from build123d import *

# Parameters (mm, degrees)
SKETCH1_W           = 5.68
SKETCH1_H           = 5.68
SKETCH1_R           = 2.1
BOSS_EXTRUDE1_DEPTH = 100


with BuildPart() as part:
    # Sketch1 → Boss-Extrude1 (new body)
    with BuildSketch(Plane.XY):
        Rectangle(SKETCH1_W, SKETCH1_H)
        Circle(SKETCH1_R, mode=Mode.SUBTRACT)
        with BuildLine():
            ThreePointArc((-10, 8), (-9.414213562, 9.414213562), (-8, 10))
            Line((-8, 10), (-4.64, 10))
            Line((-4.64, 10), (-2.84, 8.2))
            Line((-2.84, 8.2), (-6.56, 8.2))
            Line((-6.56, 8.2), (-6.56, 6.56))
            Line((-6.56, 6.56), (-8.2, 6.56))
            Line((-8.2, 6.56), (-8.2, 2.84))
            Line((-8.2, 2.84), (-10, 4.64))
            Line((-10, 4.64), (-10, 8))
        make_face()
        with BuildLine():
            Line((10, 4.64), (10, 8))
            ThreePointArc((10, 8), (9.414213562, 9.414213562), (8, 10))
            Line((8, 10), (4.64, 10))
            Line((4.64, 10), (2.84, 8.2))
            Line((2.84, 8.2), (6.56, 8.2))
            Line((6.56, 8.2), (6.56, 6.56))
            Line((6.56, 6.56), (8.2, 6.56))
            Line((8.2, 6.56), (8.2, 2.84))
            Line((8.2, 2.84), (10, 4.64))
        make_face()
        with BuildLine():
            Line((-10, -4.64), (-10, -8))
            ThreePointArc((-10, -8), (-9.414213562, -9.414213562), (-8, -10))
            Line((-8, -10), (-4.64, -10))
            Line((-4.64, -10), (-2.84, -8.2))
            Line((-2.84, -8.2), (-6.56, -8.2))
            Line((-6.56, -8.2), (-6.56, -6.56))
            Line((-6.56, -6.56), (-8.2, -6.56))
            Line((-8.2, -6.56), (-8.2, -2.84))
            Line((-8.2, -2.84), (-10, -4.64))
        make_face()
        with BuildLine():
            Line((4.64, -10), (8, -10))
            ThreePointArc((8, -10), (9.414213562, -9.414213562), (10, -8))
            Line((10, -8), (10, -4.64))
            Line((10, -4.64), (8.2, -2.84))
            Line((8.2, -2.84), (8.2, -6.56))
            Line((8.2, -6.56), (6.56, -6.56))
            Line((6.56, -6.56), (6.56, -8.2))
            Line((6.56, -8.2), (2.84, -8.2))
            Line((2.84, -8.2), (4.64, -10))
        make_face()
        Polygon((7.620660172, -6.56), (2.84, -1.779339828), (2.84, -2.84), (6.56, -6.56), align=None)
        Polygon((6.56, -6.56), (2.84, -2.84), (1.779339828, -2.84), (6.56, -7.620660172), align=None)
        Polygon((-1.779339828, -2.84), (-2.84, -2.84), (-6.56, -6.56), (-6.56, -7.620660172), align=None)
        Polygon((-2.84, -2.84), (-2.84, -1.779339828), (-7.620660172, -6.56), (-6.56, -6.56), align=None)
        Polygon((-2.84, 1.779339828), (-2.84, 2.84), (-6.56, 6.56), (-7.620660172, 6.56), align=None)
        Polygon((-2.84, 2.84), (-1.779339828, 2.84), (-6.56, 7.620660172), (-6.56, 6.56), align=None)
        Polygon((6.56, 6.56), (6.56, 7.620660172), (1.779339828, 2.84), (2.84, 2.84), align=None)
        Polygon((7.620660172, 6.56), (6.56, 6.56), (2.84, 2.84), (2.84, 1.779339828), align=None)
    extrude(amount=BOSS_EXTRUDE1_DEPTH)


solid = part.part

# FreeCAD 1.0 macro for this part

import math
import FreeCAD as App
import Part
import Sketcher
from FreeCAD import Vector
Q = App.Units.Quantity

doc = App.newDocument("Part")
params = doc.addObject("Spreadsheet::Sheet", "Params")
for row, (alias, value) in enumerate([
    ("sketch1_radius", "2 mm"),
    ("sketch1_diameter", "4.2 mm"),
    ("sketch1_width", "3.36 mm"),
    ("sketch1_width2", "3.72 mm"),
    ("pad1_length", "100 mm"),
], start=1):
    params.set(f"A{row}", alias)
    params.set(f"B{row}", "=" + value)
    params.setAlias(f"B{row}", alias)

body = doc.addObject("PartDesign::Body", "Body")

# Sketch on XY plane
sketch1 = body.newObject("Sketcher::SketchObject", "Sketch")
sketch1.AttachmentSupport = (doc.getObject("XY_Plane"), [""])
sketch1.MapMode = "FlatFace"
sketch1.addGeometry(Part.LineSegment(Vector(-2.8, 1.8, 0), Vector(-2.8, -1.8, 0)), False)
sketch1.addGeometry(Part.LineSegment(Vector(-2.8, -1.8, 0), Vector(-7.6, -6.6, 0)), False)
sketch1.addGeometry(Part.LineSegment(Vector(-7.6, -6.6, 0), Vector(-8.2, -6.6, 0)), False)
sketch1.addGeometry(Part.LineSegment(Vector(-8.2, -6.6, 0), Vector(-8.2, -2.8, 0)), False)
sketch1.addGeometry(Part.LineSegment(Vector(-8.2, -2.8, 0), Vector(-10, -4.6, 0)), False)
sketch1.addGeometry(Part.LineSegment(Vector(-10, -4.6, 0), Vector(-10, -8, 0)), False)
sketch1.addGeometry(Part.ArcOfCircle(Part.Circle(Vector(-8, -8, 0), Vector(0, 0, 1), 2), math.radians(-180), math.radians(-90)), False)
sketch1.addGeometry(Part.LineSegment(Vector(-8, -10, 0), Vector(-4.6, -10, 0)), False)
sketch1.addGeometry(Part.LineSegment(Vector(-4.6, -10, 0), Vector(-2.8, -8.2, 0)), False)
sketch1.addGeometry(Part.LineSegment(Vector(-2.8, -8.2, 0), Vector(-6.6, -8.2, 0)), False)
sketch1.addGeometry(Part.LineSegment(Vector(-6.6, -8.2, 0), Vector(-6.6, -7.6, 0)), False)
sketch1.addGeometry(Part.LineSegment(Vector(-6.6, -7.6, 0), Vector(-1.8, -2.8, 0)), False)
sketch1.addGeometry(Part.LineSegment(Vector(-1.8, -2.8, 0), Vector(1.8, -2.8, 0)), False)
sketch1.addGeometry(Part.LineSegment(Vector(1.8, -2.8, 0), Vector(6.6, -7.6, 0)), False)
sketch1.addGeometry(Part.LineSegment(Vector(6.6, -7.6, 0), Vector(6.6, -8.2, 0)), False)
sketch1.addGeometry(Part.LineSegment(Vector(6.6, -8.2, 0), Vector(2.8, -8.2, 0)), False)
sketch1.addGeometry(Part.LineSegment(Vector(2.8, -8.2, 0), Vector(4.6, -10, 0)), False)
sketch1.addGeometry(Part.LineSegment(Vector(4.6, -10, 0), Vector(8, -10, 0)), False)
sketch1.addGeometry(Part.ArcOfCircle(Part.Circle(Vector(8, -8, 0), Vector(0, 0, 1), 2), math.radians(-90), math.radians(0)), False)
sketch1.addGeometry(Part.LineSegment(Vector(10, -8, 0), Vector(10, -4.6, 0)), False)
sketch1.addGeometry(Part.LineSegment(Vector(10, -4.6, 0), Vector(8.2, -2.8, 0)), False)
sketch1.addGeometry(Part.LineSegment(Vector(8.2, -2.8, 0), Vector(8.2, -6.6, 0)), False)
sketch1.addGeometry(Part.LineSegment(Vector(8.2, -6.6, 0), Vector(7.6, -6.6, 0)), False)
sketch1.addGeometry(Part.LineSegment(Vector(7.6, -6.6, 0), Vector(2.8, -1.8, 0)), False)
sketch1.addGeometry(Part.LineSegment(Vector(2.8, -1.8, 0), Vector(2.8, 1.8, 0)), False)
sketch1.addGeometry(Part.LineSegment(Vector(2.8, 1.8, 0), Vector(7.6, 6.6, 0)), False)
sketch1.addGeometry(Part.LineSegment(Vector(7.6, 6.6, 0), Vector(8.2, 6.6, 0)), False)
sketch1.addGeometry(Part.LineSegment(Vector(8.2, 6.6, 0), Vector(8.2, 2.8, 0)), False)
sketch1.addGeometry(Part.LineSegment(Vector(8.2, 2.8, 0), Vector(10, 4.6, 0)), False)
sketch1.addGeometry(Part.LineSegment(Vector(10, 4.6, 0), Vector(10, 8, 0)), False)
sketch1.addGeometry(Part.ArcOfCircle(Part.Circle(Vector(8, 8, 0), Vector(0, 0, 1), 2), math.radians(0), math.radians(90)), False)
sketch1.addGeometry(Part.LineSegment(Vector(8, 10, 0), Vector(4.6, 10, 0)), False)
sketch1.addGeometry(Part.LineSegment(Vector(4.6, 10, 0), Vector(2.8, 8.2, 0)), False)
sketch1.addGeometry(Part.LineSegment(Vector(2.8, 8.2, 0), Vector(6.6, 8.2, 0)), False)
sketch1.addGeometry(Part.LineSegment(Vector(6.6, 8.2, 0), Vector(6.6, 7.6, 0)), False)
sketch1.addGeometry(Part.LineSegment(Vector(6.6, 7.6, 0), Vector(1.8, 2.8, 0)), False)
sketch1.addGeometry(Part.LineSegment(Vector(1.8, 2.8, 0), Vector(-1.8, 2.8, 0)), False)
sketch1.addGeometry(Part.LineSegment(Vector(-1.8, 2.8, 0), Vector(-6.6, 7.6, 0)), False)
sketch1.addGeometry(Part.LineSegment(Vector(-6.6, 7.6, 0), Vector(-6.6, 8.2, 0)), False)
sketch1.addGeometry(Part.LineSegment(Vector(-6.6, 8.2, 0), Vector(-2.8, 8.2, 0)), False)
sketch1.addGeometry(Part.LineSegment(Vector(-2.8, 8.2, 0), Vector(-4.6, 10, 0)), False)
sketch1.addGeometry(Part.LineSegment(Vector(-4.6, 10, 0), Vector(-8, 10, 0)), False)
sketch1.addGeometry(Part.ArcOfCircle(Part.Circle(Vector(-8, 8, 0), Vector(0, 0, 1), 2), math.radians(90), math.radians(180)), False)
sketch1.addGeometry(Part.LineSegment(Vector(-10, 8, 0), Vector(-10, 4.6, 0)), False)
sketch1.addGeometry(Part.LineSegment(Vector(-10, 4.6, 0), Vector(-8.2, 2.8, 0)), False)
sketch1.addGeometry(Part.LineSegment(Vector(-8.2, 2.8, 0), Vector(-8.2, 6.6, 0)), False)
sketch1.addGeometry(Part.LineSegment(Vector(-8.2, 6.6, 0), Vector(-7.6, 6.6, 0)), False)
sketch1.addGeometry(Part.LineSegment(Vector(-7.6, 6.6, 0), Vector(-2.8, 1.8, 0)), False)
sketch1.addGeometry(Part.Circle(Vector(0, 0, 0), Vector(0, 0, 1), 2.1), False)
sketch1.addConstraint(Sketcher.Constraint("Coincident", 0, 2, 1, 1))
sketch1.addConstraint(Sketcher.Constraint("Coincident", 1, 2, 2, 1))
sketch1.addConstraint(Sketcher.Constraint("Coincident", 2, 2, 3, 1))
sketch1.addConstraint(Sketcher.Constraint("Coincident", 3, 2, 4, 1))
sketch1.addConstraint(Sketcher.Constraint("Coincident", 4, 2, 5, 1))
sketch1.addConstraint(Sketcher.Constraint("Tangent", 5, 2, 6, 1))
sketch1.addConstraint(Sketcher.Constraint("Tangent", 6, 2, 7, 1))
sketch1.addConstraint(Sketcher.Constraint("Coincident", 7, 2, 8, 1))
sketch1.addConstraint(Sketcher.Constraint("Coincident", 8, 2, 9, 1))
sketch1.addConstraint(Sketcher.Constraint("Coincident", 9, 2, 10, 1))
sketch1.addConstraint(Sketcher.Constraint("Coincident", 10, 2, 11, 1))
sketch1.addConstraint(Sketcher.Constraint("Coincident", 11, 2, 12, 1))
sketch1.addConstraint(Sketcher.Constraint("Coincident", 12, 2, 13, 1))
sketch1.addConstraint(Sketcher.Constraint("Coincident", 13, 2, 14, 1))
sketch1.addConstraint(Sketcher.Constraint("Coincident", 14, 2, 15, 1))
sketch1.addConstraint(Sketcher.Constraint("Coincident", 15, 2, 16, 1))
sketch1.addConstraint(Sketcher.Constraint("Coincident", 16, 2, 17, 1))
sketch1.addConstraint(Sketcher.Constraint("Tangent", 17, 2, 18, 1))
sketch1.addConstraint(Sketcher.Constraint("Tangent", 18, 2, 19, 1))
sketch1.addConstraint(Sketcher.Constraint("Coincident", 19, 2, 20, 1))
sketch1.addConstraint(Sketcher.Constraint("Coincident", 20, 2, 21, 1))
sketch1.addConstraint(Sketcher.Constraint("Coincident", 21, 2, 22, 1))
sketch1.addConstraint(Sketcher.Constraint("Coincident", 22, 2, 23, 1))
sketch1.addConstraint(Sketcher.Constraint("Coincident", 23, 2, 24, 1))
sketch1.addConstraint(Sketcher.Constraint("Coincident", 24, 2, 25, 1))
sketch1.addConstraint(Sketcher.Constraint("Coincident", 25, 2, 26, 1))
sketch1.addConstraint(Sketcher.Constraint("Coincident", 26, 2, 27, 1))
sketch1.addConstraint(Sketcher.Constraint("Coincident", 27, 2, 28, 1))
sketch1.addConstraint(Sketcher.Constraint("Coincident", 28, 2, 29, 1))
sketch1.addConstraint(Sketcher.Constraint("Tangent", 29, 2, 30, 1))
sketch1.addConstraint(Sketcher.Constraint("Tangent", 30, 2, 31, 1))
sketch1.addConstraint(Sketcher.Constraint("Coincident", 31, 2, 32, 1))
sketch1.addConstraint(Sketcher.Constraint("Coincident", 32, 2, 33, 1))
sketch1.addConstraint(Sketcher.Constraint("Coincident", 33, 2, 34, 1))
sketch1.addConstraint(Sketcher.Constraint("Coincident", 34, 2, 35, 1))
sketch1.addConstraint(Sketcher.Constraint("Coincident", 35, 2, 36, 1))
sketch1.addConstraint(Sketcher.Constraint("Coincident", 36, 2, 37, 1))
sketch1.addConstraint(Sketcher.Constraint("Coincident", 37, 2, 38, 1))
sketch1.addConstraint(Sketcher.Constraint("Coincident", 38, 2, 39, 1))
sketch1.addConstraint(Sketcher.Constraint("Coincident", 39, 2, 40, 1))
sketch1.addConstraint(Sketcher.Constraint("Coincident", 40, 2, 41, 1))
sketch1.addConstraint(Sketcher.Constraint("Tangent", 41, 2, 42, 1))
sketch1.addConstraint(Sketcher.Constraint("Tangent", 42, 2, 43, 1))
sketch1.addConstraint(Sketcher.Constraint("Coincident", 43, 2, 44, 1))
sketch1.addConstraint(Sketcher.Constraint("Coincident", 44, 2, 45, 1))
sketch1.addConstraint(Sketcher.Constraint("Coincident", 45, 2, 46, 1))
sketch1.addConstraint(Sketcher.Constraint("Coincident", 46, 2, 47, 1))
sketch1.addConstraint(Sketcher.Constraint("Coincident", 47, 2, 0, 1))
sketch1.addConstraint(Sketcher.Constraint("Vertical", 0))
sketch1.addConstraint(Sketcher.Constraint("Horizontal", 2))
sketch1.addConstraint(Sketcher.Constraint("Vertical", 3))
sketch1.addConstraint(Sketcher.Constraint("Vertical", 5))
sketch1.addConstraint(Sketcher.Constraint("Horizontal", 7))
sketch1.addConstraint(Sketcher.Constraint("Horizontal", 9))
sketch1.addConstraint(Sketcher.Constraint("Vertical", 10))
sketch1.addConstraint(Sketcher.Constraint("Horizontal", 12))
sketch1.addConstraint(Sketcher.Constraint("Vertical", 14))
sketch1.addConstraint(Sketcher.Constraint("Horizontal", 15))
sketch1.addConstraint(Sketcher.Constraint("Horizontal", 17))
sketch1.addConstraint(Sketcher.Constraint("Vertical", 19))
sketch1.addConstraint(Sketcher.Constraint("Vertical", 21))
sketch1.addConstraint(Sketcher.Constraint("Horizontal", 22))
sketch1.addConstraint(Sketcher.Constraint("Vertical", 24))
sketch1.addConstraint(Sketcher.Constraint("Horizontal", 26))
sketch1.addConstraint(Sketcher.Constraint("Vertical", 27))
sketch1.addConstraint(Sketcher.Constraint("Vertical", 29))
sketch1.addConstraint(Sketcher.Constraint("Horizontal", 31))
sketch1.addConstraint(Sketcher.Constraint("Horizontal", 33))
sketch1.addConstraint(Sketcher.Constraint("Vertical", 34))
sketch1.addConstraint(Sketcher.Constraint("Horizontal", 36))
sketch1.addConstraint(Sketcher.Constraint("Vertical", 38))
sketch1.addConstraint(Sketcher.Constraint("Horizontal", 39))
sketch1.addConstraint(Sketcher.Constraint("Horizontal", 41))
sketch1.addConstraint(Sketcher.Constraint("Vertical", 43))
sketch1.addConstraint(Sketcher.Constraint("Vertical", 45))
sketch1.addConstraint(Sketcher.Constraint("Horizontal", 46))
sketch1.addConstraint(Sketcher.Constraint("Coincident", 48, 3, -1, 1))
sketch1.addConstraint(Sketcher.Constraint("Equal", 6, 18))
sketch1.addConstraint(Sketcher.Constraint("Equal", 18, 30))
sketch1.addConstraint(Sketcher.Constraint("Equal", 30, 42))
sketch1.addConstraint(Sketcher.Constraint("Symmetric", 6, 3, 30, 3, -1, 1))
sketch1.addConstraint(Sketcher.Constraint("Symmetric", 18, 3, 42, 3, -1, 1))
sketch1.addConstraint(Sketcher.Constraint("Symmetric", 0, 2, 24, 2, -1, 1))
sketch1.addConstraint(Sketcher.Constraint("Symmetric", 1, 2, 25, 2, -1, 1))
sketch1.addConstraint(Sketcher.Constraint("Symmetric", 3, 2, 27, 2, -1, 1))
sketch1.addConstraint(Sketcher.Constraint("Symmetric", 8, 2, 32, 2, -1, 1))
sketch1.addConstraint(Sketcher.Constraint("Symmetric", 10, 2, 34, 2, -1, 1))
sketch1.addConstraint(Sketcher.Constraint("Symmetric", 11, 2, 35, 2, -1, 1))
sketch1.addConstraint(Sketcher.Constraint("Symmetric", 13, 2, 37, 2, -1, 1))
sketch1.addConstraint(Sketcher.Constraint("Symmetric", 15, 2, 39, 2, -1, 1))
sketch1.addConstraint(Sketcher.Constraint("Symmetric", 20, 2, 44, 2, -1, 1))
sketch1.addConstraint(Sketcher.Constraint("Symmetric", 22, 2, 46, 2, -1, 1))
sketch1.addConstraint(Sketcher.Constraint("Symmetric", 6, 3, 18, 3, -2))
sketch1.addConstraint(Sketcher.Constraint("Symmetric", 10, 2, 13, 2, -2))
sketch1.addConstraint(Sketcher.Constraint("Symmetric", 8, 2, 15, 2, -2))
sketch1.addConstraint(Sketcher.Constraint("Symmetric", 3, 2, 20, 2, -2))
sketch1.addConstraint(Sketcher.Constraint("Symmetric", 1, 2, 22, 2, -2))
sketch1.addConstraint(Sketcher.Constraint("Parallel", 1, 4))
sketch1.addConstraint(Sketcher.Constraint("Parallel", 4, 8))
sketch1.addConstraint(Sketcher.Constraint("Parallel", 8, 11))
sketch1.addConstraint(Sketcher.Constraint("Perpendicular", 11, 13))
sketch1.addConstraint(Sketcher.Constraint("Parallel", 13, 16))
sketch1.addConstraint(Sketcher.Constraint("Parallel", 16, 20))
sketch1.addConstraint(Sketcher.Constraint("Parallel", 20, 23))
sketch1.addConstraint(Sketcher.Constraint("Parallel", 25, 28))
sketch1.addConstraint(Sketcher.Constraint("Parallel", 28, 32))
sketch1.addConstraint(Sketcher.Constraint("Perpendicular", 35, 37))
sketch1.addConstraint(Sketcher.Constraint("Parallel", 37, 40))
sketch1.addConstraint(Sketcher.Constraint("Parallel", 40, 44))
sketch1.addConstraint(Sketcher.Constraint("Parallel", 44, 47))
sketch1.addConstraint(Sketcher.Constraint("Horizontal", 3, 2, 11, 2))
sketch1.addConstraint(Sketcher.Constraint("Horizontal", 4, 2, 19, 2))
sketch1.addConstraint(Sketcher.Constraint("Vertical", 0, 2, 8, 2))
sketch1.addConstraint(Sketcher.Constraint("Equal", 36, 0))
sketch1.addConstraint(Sketcher.Constraint("Equal", 39, 3))
sketch1.addConstraint(Sketcher.Constraint("Equal", 41, 5))
sketch1.addConstraint(Sketcher.Constraint("Equal", 46, 10))
sketch1.addConstraint(Sketcher.Constraint("Equal", 4, 8))
sketch1.addConstraint(Sketcher.Constraint("Radius", 6, Q("2 mm")))
sketch1.addConstraint(Sketcher.Constraint("Diameter", 48, Q("4.2 mm")))
sketch1.addConstraint(Sketcher.Constraint("DistanceX", 6, 3, -1, 1, Q("8 mm")))
sketch1.addConstraint(Sketcher.Constraint("DistanceX", 7, 1, 7, 2, Q("3.36 mm")))
sketch1.addConstraint(Sketcher.Constraint("DistanceX", 9, 2, 9, 1, Q("3.72 mm")))
sketch1.addConstraint(Sketcher.Constraint("DistanceX", 2, 2, -1, 1, Q("8.2 mm")))
sketch1.addConstraint(Sketcher.Constraint("DistanceX", 2, 2, 2, 1, Q("0.57934 mm")))
sketch1.setExpression("Constraints[118]", "Params.sketch1_radius")
sketch1.setExpression("Constraints[119]", "Params.sketch1_diameter")
sketch1.setExpression("Constraints[121]", "Params.sketch1_width")
sketch1.setExpression("Constraints[122]", "Params.sketch1_width2")
pad1 = body.newObject("PartDesign::Pad", "Pad")
pad1.Profile = sketch1
pad1.setExpression("Length", "Params.pad1_length")

doc.recompute()
